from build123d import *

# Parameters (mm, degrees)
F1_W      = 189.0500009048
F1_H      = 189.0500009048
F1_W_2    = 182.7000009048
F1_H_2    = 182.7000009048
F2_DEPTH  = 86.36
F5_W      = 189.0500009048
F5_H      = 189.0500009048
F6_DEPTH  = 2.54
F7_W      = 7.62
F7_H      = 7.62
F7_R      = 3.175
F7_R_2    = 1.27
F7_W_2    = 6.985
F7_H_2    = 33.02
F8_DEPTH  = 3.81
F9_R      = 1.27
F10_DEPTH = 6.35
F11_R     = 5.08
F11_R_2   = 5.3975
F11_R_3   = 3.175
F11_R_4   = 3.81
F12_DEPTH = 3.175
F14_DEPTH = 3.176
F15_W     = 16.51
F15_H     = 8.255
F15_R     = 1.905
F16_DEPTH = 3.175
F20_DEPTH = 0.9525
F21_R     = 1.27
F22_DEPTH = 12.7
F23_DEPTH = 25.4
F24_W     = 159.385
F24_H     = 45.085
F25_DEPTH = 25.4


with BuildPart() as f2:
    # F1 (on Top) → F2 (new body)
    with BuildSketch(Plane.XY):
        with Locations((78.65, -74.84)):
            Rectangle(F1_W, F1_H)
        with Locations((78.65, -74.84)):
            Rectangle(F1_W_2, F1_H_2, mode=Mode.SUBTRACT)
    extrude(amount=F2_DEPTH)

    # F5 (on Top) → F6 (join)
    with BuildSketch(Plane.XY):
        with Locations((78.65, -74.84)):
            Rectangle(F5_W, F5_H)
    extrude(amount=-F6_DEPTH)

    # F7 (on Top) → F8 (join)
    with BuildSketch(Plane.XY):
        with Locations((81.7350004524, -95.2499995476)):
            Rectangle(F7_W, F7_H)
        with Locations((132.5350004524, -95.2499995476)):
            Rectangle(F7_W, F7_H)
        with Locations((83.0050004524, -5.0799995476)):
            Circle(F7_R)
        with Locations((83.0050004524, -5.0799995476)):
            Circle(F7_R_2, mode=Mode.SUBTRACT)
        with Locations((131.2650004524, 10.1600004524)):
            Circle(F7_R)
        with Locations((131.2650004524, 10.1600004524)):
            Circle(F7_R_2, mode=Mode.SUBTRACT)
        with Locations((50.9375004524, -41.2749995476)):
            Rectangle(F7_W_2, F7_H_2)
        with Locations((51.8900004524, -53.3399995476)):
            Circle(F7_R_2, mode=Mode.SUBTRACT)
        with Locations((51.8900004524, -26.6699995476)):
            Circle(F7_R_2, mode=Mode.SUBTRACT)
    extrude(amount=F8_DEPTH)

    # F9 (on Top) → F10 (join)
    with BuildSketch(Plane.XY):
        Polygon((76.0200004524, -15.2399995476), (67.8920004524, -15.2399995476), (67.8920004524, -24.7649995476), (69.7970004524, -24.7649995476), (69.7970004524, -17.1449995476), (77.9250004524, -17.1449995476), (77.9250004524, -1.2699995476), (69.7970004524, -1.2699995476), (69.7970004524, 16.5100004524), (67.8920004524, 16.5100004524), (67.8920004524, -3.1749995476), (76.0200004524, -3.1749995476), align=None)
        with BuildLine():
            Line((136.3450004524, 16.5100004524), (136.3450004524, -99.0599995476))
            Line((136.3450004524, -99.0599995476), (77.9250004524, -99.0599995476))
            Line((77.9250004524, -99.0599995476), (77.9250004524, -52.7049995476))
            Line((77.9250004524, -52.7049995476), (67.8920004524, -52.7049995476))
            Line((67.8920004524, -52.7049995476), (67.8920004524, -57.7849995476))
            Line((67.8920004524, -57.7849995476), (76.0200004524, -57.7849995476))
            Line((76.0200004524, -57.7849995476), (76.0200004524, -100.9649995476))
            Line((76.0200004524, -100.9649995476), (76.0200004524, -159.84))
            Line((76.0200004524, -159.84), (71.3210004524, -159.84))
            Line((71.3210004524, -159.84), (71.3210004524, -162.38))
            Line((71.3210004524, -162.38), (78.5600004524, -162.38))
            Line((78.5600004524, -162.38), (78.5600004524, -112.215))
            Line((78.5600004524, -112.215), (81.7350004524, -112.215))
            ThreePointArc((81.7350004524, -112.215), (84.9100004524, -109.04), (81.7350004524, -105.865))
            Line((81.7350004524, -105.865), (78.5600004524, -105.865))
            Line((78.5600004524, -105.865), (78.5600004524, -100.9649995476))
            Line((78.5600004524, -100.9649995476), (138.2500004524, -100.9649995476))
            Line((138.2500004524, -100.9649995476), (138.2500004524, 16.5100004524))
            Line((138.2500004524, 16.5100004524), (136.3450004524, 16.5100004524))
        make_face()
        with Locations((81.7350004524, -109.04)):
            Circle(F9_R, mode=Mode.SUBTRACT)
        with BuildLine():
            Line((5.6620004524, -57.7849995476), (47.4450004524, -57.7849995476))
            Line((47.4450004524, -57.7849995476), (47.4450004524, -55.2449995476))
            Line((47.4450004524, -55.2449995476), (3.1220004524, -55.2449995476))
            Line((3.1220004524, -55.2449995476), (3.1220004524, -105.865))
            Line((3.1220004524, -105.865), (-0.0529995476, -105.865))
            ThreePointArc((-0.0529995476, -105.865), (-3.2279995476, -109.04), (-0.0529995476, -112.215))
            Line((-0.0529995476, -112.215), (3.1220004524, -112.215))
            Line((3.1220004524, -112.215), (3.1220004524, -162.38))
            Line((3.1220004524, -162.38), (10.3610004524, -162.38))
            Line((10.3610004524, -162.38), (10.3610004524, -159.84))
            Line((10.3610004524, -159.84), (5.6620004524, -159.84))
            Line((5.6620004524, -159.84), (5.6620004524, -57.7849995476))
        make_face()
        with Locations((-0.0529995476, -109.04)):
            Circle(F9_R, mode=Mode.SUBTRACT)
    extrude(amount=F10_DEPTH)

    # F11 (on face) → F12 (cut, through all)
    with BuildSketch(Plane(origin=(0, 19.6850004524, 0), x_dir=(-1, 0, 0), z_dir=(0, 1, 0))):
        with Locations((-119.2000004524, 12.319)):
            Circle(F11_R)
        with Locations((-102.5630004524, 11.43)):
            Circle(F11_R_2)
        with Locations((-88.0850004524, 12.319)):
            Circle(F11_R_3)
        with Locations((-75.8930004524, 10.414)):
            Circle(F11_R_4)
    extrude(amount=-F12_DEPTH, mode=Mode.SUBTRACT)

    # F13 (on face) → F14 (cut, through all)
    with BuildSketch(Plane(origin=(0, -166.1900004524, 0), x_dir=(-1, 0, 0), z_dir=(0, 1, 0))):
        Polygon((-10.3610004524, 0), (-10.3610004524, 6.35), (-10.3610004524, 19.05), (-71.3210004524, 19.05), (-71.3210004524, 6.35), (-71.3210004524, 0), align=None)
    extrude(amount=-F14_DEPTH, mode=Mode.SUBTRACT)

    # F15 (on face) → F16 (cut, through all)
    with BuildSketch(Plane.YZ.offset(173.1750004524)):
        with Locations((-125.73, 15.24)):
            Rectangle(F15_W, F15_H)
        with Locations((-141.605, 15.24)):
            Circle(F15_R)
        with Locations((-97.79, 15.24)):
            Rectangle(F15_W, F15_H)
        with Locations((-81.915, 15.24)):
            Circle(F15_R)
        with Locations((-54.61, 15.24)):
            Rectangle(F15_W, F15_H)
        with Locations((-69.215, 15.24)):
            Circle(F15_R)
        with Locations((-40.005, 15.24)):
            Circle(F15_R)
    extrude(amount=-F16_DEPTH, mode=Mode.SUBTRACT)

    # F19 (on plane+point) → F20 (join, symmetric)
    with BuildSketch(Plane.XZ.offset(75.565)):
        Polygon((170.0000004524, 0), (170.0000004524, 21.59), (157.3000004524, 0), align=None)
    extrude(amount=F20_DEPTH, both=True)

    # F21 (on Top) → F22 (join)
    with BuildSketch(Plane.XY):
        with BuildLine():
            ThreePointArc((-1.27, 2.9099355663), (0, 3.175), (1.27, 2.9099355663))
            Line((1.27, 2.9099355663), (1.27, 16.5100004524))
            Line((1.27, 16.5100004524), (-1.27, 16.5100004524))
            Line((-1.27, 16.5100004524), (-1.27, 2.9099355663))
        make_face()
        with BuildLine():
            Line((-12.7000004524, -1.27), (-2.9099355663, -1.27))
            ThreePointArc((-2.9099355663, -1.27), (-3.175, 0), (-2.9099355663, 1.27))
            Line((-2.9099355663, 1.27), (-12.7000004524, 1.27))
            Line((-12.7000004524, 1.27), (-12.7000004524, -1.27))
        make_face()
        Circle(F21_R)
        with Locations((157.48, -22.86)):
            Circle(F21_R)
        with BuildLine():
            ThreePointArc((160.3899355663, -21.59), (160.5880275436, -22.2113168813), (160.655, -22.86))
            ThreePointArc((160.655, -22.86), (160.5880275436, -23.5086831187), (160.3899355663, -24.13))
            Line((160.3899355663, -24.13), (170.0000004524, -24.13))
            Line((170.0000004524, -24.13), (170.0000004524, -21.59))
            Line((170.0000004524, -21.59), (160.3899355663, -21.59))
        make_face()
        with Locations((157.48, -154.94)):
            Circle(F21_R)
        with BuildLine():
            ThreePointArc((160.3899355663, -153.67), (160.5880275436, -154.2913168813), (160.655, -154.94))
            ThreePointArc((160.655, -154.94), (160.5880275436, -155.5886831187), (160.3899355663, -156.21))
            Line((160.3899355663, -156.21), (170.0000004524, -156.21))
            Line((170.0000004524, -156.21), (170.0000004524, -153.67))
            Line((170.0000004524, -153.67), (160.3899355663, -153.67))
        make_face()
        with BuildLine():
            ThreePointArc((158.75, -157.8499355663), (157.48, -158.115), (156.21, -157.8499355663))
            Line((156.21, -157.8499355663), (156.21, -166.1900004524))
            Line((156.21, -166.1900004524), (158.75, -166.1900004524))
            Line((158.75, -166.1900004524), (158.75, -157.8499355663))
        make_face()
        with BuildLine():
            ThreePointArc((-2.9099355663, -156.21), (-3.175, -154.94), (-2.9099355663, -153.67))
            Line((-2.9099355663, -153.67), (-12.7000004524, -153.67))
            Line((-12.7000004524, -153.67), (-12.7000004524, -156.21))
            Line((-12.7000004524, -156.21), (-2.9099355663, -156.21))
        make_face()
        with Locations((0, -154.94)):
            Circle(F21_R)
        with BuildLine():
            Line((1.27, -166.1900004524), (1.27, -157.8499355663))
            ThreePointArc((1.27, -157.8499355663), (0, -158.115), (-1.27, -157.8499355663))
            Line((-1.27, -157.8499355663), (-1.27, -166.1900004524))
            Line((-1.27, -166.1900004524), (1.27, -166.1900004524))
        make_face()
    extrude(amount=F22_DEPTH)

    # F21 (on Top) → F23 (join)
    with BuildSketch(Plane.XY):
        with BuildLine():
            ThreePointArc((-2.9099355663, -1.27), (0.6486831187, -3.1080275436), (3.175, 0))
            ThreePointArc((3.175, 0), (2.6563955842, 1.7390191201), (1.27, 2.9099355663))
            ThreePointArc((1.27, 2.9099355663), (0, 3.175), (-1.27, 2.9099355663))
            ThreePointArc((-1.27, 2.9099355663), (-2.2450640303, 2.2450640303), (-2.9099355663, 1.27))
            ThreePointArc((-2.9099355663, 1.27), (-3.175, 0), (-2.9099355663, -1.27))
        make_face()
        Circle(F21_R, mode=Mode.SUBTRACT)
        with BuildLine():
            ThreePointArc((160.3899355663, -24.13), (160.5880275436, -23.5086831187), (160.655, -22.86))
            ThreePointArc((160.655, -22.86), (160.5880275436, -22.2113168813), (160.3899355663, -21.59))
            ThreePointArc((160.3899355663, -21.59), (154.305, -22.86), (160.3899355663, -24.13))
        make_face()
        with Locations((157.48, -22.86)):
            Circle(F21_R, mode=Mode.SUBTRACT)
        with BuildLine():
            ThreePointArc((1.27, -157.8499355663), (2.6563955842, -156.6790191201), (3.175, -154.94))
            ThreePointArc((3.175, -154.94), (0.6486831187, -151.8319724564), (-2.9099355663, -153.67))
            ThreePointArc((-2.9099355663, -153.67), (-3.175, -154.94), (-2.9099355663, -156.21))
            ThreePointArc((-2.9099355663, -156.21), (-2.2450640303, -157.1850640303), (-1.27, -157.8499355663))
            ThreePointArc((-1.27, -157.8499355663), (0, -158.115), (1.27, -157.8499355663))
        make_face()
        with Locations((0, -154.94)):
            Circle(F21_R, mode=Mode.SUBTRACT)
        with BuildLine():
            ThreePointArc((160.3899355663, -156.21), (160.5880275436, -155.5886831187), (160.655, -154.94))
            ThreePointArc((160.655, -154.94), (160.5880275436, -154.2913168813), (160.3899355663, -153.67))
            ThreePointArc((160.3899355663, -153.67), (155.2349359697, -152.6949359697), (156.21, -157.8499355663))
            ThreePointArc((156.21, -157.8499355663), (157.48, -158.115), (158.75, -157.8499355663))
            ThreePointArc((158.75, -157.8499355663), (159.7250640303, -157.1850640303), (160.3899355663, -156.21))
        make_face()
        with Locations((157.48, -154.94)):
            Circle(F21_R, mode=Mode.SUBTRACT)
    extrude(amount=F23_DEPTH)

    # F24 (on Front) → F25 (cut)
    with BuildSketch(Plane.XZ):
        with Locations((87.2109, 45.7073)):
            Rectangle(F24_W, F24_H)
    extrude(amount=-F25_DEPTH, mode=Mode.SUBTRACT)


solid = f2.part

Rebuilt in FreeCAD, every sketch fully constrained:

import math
import FreeCAD as App
import Part
import Sketcher

V = App.Vector
Q = App.Units.Quantity


def add_polygon(sketch, points):
    """Adds a closed chain of lines whose ends are joined by coincident constraints."""
    first, n = sketch.GeometryCount, len(points)
    for a, b in zip(points, points[1:] + points[:1]):
        sketch.addGeometry(Part.LineSegment(App.Vector(*a, 0), App.Vector(*b, 0)), False)
    for i in range(n):
        sketch.addConstraint(Sketcher.Constraint("Coincident", first + i, 2, first + (i + 1) % n, 1))

doc = App.newDocument("Part")
body = doc.addObject("PartDesign::Body", "Body")

# Sketch on XY plane
sketch1 = body.newObject("Sketcher::SketchObject", "Sketch")
sketch1.AttachmentSupport = (doc.getObject("XY_Plane"), [""])
sketch1.MapMode = "FlatFace"
add_polygon(sketch1, [(-15.875, 19.685), (-15.875, -169.365), (173.175, -169.365), (173.175, 19.685)])  # lines 0-3
add_polygon(sketch1, [(170, -166.19), (-12.7, -166.19), (-12.7, 16.51), (170, 16.51)])  # lines 4-7
sketch1.addConstraint([
    Sketcher.Constraint("Vertical", 0),
    Sketcher.Constraint("Horizontal", 1),
    Sketcher.Constraint("Vertical", 2),
    Sketcher.Constraint("Horizontal", 3),
    Sketcher.Constraint("Horizontal", 4),
    Sketcher.Constraint("Vertical", 5),
    Sketcher.Constraint("Horizontal", 6),
    Sketcher.Constraint("Vertical", 7),
    Sketcher.Constraint("Equal", 3, 0),
    Sketcher.Constraint("Equal", 6, 5),
    Sketcher.Constraint("DistanceX", 4, 2, -1, 1, Q("0.5 in")),
    Sketcher.Constraint("DistanceY", -1, 1, 5, 2, Q("0.65 in")),
    Sketcher.Constraint("DistanceX", 0, 2, -1, 1, Q("0.625 in")),
    Sketcher.Constraint("DistanceY", -1, 1, 2, 2, Q("0.775 in")),
    Sketcher.Constraint("DistanceY", 0, 2, 4, 2, Q("0.125 in")),
    Sketcher.Constraint("DistanceX", 1, 1, 1, 2, 189.050001),
])
pad1 = body.newObject("PartDesign::Pad", "Pad")
pad1.Profile = sketch1
pad1.Length = Q("3.4 in")

# Sketch on XY plane
sketch2 = body.newObject("Sketcher::SketchObject", "Sketch001")
sketch2.AttachmentSupport = (doc.getObject("XY_Plane"), [""])
sketch2.MapMode = "FlatFace"
add_polygon(sketch2, [(-15.875, 19.685), (-15.875, -169.365), (173.175, -169.365), (173.175, 19.685)])  # lines 0-3
sketch2.addConstraint([
    Sketcher.Constraint("Vertical", 0),
    Sketcher.Constraint("Horizontal", 1),
    Sketcher.Constraint("Vertical", 2),
    Sketcher.Constraint("Horizontal", 3),
    Sketcher.Constraint("Equal", 3, 0),
    Sketcher.Constraint("DistanceX", 0, 2, -1, 1, Q("0.625 in")),
    Sketcher.Constraint("DistanceY", -1, 1, 2, 2, Q("0.775 in")),
    Sketcher.Constraint("DistanceX", 1, 1, 1, 2, 189.050001),
])
pad2 = body.newObject("PartDesign::Pad", "Pad001")
pad2.Profile = sketch2
pad2.Length = Q("0.1 in")
pad2.Reversed = True

# Sketch on XY plane
sketch3 = body.newObject("Sketcher::SketchObject", "Sketch002")
sketch3.AttachmentSupport = (doc.getObject("XY_Plane"), [""])
sketch3.MapMode = "FlatFace"
add_polygon(sketch3, [(77.925, -91.44), (77.925, -99.06), (85.545, -99.06), (85.545, -91.44)])  # lines 0-3
add_polygon(sketch3, [(128.725, -91.44), (128.725, -99.06), (136.345, -99.06), (136.345, -91.44)])  # lines 4-7
sketch3.addGeometry(Part.Circle(V(83.005, -5.08, 0), V(0, 0, 1), 3.175), False)  # 8
sketch3.addGeometry(Part.Circle(V(83.005, -5.08, 0), V(0, 0, 1), 1.27), False)  # 9
sketch3.addGeometry(Part.Circle(V(131.265, 10.16, 0), V(0, 0, 1), 3.175), False)  # 10
sketch3.addGeometry(Part.Circle(V(131.265, 10.16, 0), V(0, 0, 1), 1.27), False)  # 11
add_polygon(sketch3, [(47.445, -24.765), (47.445, -57.785), (54.43, -57.785), (54.43, -24.765)])  # lines 12-15
sketch3.addGeometry(Part.Circle(V(51.89, -53.34, 0), V(0, 0, 1), 1.27), False)  # 16
sketch3.addGeometry(Part.Circle(V(51.89, -26.67, 0), V(0, 0, 1), 1.27), False)  # 17
sketch3.addConstraint([
    Sketcher.Constraint("Vertical", 0),
    Sketcher.Constraint("Horizontal", 1),
    Sketcher.Constraint("Vertical", 2),
    Sketcher.Constraint("Horizontal", 3),
    Sketcher.Constraint("Vertical", 4),
    Sketcher.Constraint("Horizontal", 5),
    Sketcher.Constraint("Vertical", 6),
    Sketcher.Constraint("Horizontal", 7),
    Sketcher.Constraint("Vertical", 12),
    Sketcher.Constraint("Horizontal", 13),
    Sketcher.Constraint("Vertical", 14),
    Sketcher.Constraint("Horizontal", 15),
    Sketcher.Constraint("Coincident", 9, 3, 8, 3),
    Sketcher.Constraint("Coincident", 11, 3, 10, 3),
    Sketcher.Constraint("Equal", 8, 10),
    Sketcher.Constraint("Equal", 9, 11),
    Sketcher.Constraint("Equal", 11, 16),
    Sketcher.Constraint("Equal", 16, 17),
    Sketcher.Constraint("Horizontal", 1, 2, 4, 2),
    Sketcher.Constraint("Horizontal", 3, 2, 6, 2),
    Sketcher.Constraint("Vertical", 16, 3, 17, 3),
    Sketcher.Constraint("Equal", 3, 5),
    Sketcher.Constraint("Equal", 7, 0),
    Sketcher.Constraint("Diameter", 9, Q("0.1 in")),
    Sketcher.Constraint("Diameter", 8, Q("0.25 in")),
    Sketcher.Constraint("DistanceX", 1, 1, 1, 2, Q("0.3 in")),
    Sketcher.Constraint("DistanceY", 12, 2, 12, 1, Q("1.3 in")),
    Sketcher.Constraint("DistanceX", 0, 2, 4, 2, Q("2 in")),
    Sketcher.Constraint("DistanceY", 8, 3, -1, 1, Q("0.2 in")),
    Sketcher.Constraint("DistanceY", -1, 1, 10, 3, Q("0.4 in")),
    Sketcher.Constraint("DistanceY", 16, 3, -1, 1, Q("2.1 in")),
    Sketcher.Constraint("DistanceY", 0, 2, -1, 1, Q("3.9 in")),
    Sketcher.Constraint("DistanceX", 8, 3, 10, 3, Q("1.9 in")),
    Sketcher.Constraint("DistanceX", 0, 2, 8, 3, Q("0.2 in")),
    Sketcher.Constraint("DistanceX", 12, 2, 3, 2, Q("1.2 in")),
    Sketcher.Constraint("DistanceX", 16, 3, 13, 2, Q("0.1 in")),
    Sketcher.Constraint("DistanceX", 13, 1, 13, 2, Q("0.275 in")),
    Sketcher.Constraint("DistanceY", 17, 3, -1, 1, Q("1.05 in")),
    Sketcher.Constraint("DistanceY", 12, 2, -1, 1, Q("2.275 in")),
    Sketcher.Constraint("DistanceX", -1, 1, 8, 3, 83.005),
])
pad3 = body.newObject("PartDesign::Pad", "Pad002")
pad3.Profile = sketch3
pad3.Length = Q("0.15 in")

# Sketch on XY plane
sketch4 = body.newObject("Sketcher::SketchObject", "Sketch003")
sketch4.AttachmentSupport = (doc.getObject("XY_Plane"), [""])
sketch4.MapMode = "FlatFace"
add_polygon(sketch4, [(76.02, -15.24), (67.892, -15.24), (67.892, -24.765), (69.797, -24.765), (69.797, -17.145), (77.925, -17.145), (77.925, -1.27), (69.797, -1.27), (69.797, 16.51), (67.892, 16.51), (67.892, -3.175), (76.02, -3.175)])  # lines 0-11
sketch4.addGeometry(Part.LineSegment(V(136.345, 16.51, 0), V(136.345, -99.06, 0)), False)  # 12
sketch4.addGeometry(Part.LineSegment(V(136.345, -99.06, 0), V(77.925, -99.06, 0)), False)  # 13
sketch4.addGeometry(Part.LineSegment(V(77.925, -99.06, 0), V(77.925, -52.705, 0)), False)  # 14
sketch4.addGeometry(Part.LineSegment(V(77.925, -52.705, 0), V(67.892, -52.705, 0)), False)  # 15
sketch4.addGeometry(Part.LineSegment(V(67.892, -52.705, 0), V(67.892, -57.785, 0)), False)  # 16
sketch4.addGeometry(Part.LineSegment(V(67.892, -57.785, 0), V(76.02, -57.785, 0)), False)  # 17
sketch4.addGeometry(Part.LineSegment(V(76.02, -57.785, 0), V(76.02, -159.84, 0)), False)  # 18
sketch4.addGeometry(Part.LineSegment(V(76.02, -159.84, 0), V(71.321, -159.84, 0)), False)  # 19
sketch4.addGeometry(Part.LineSegment(V(71.321, -159.84, 0), V(71.321, -162.38, 0)), False)  # 20
sketch4.addGeometry(Part.LineSegment(V(71.321, -162.38, 0), V(78.56, -162.38, 0)), False)  # 21
sketch4.addGeometry(Part.LineSegment(V(78.56, -162.38, 0), V(78.56, -112.215, 0)), False)  # 22
sketch4.addGeometry(Part.LineSegment(V(78.56, -112.215, 0), V(81.735, -112.215, 0)), False)  # 23
sketch4.addGeometry(Part.ArcOfCircle(Part.Circle(V(81.735, -109.04, 0), V(0, 0, 1), 3.175), math.radians(-90), math.radians(90)), False)  # 24
sketch4.addGeometry(Part.LineSegment(V(81.735, -105.865, 0), V(78.56, -105.865, 0)), False)  # 25
sketch4.addGeometry(Part.LineSegment(V(78.56, -105.865, 0), V(78.56, -100.965, 0)), False)  # 26
sketch4.addGeometry(Part.LineSegment(V(78.56, -100.965, 0), V(138.25, -100.965, 0)), False)  # 27
sketch4.addGeometry(Part.LineSegment(V(138.25, -100.965, 0), V(138.25, 16.51, 0)), False)  # 28
sketch4.addGeometry(Part.LineSegment(V(138.25, 16.51, 0), V(136.345, 16.51, 0)), False)  # 29
sketch4.addGeometry(Part.Circle(V(81.735, -109.04, 0), V(0, 0, 1), 1.27), False)  # 30
sketch4.addGeometry(Part.LineSegment(V(5.662, -57.785, 0), V(47.445, -57.785, 0)), False)  # 31
sketch4.addGeometry(Part.LineSegment(V(47.445, -57.785, 0), V(47.445, -55.245, 0)), False)  # 32
sketch4.addGeometry(Part.LineSegment(V(47.445, -55.245, 0), V(3.122, -55.245, 0)), False)  # 33
sketch4.addGeometry(Part.LineSegment(V(3.122, -55.245, 0), V(3.122, -105.865, 0)), False)  # 34
sketch4.addGeometry(Part.LineSegment(V(3.122, -105.865, 0), V(-0.053, -105.865, 0)), False)  # 35
sketch4.addGeometry(Part.ArcOfCircle(Part.Circle(V(-0.053, -109.04, 0), V(0, 0, 1), 3.175), math.radians(90), math.radians(270)), False)  # 36
sketch4.addGeometry(Part.LineSegment(V(-0.053, -112.215, 0), V(3.122, -112.215, 0)), False)  # 37
sketch4.addGeometry(Part.LineSegment(V(3.122, -112.215, 0), V(3.122, -162.38, 0)), False)  # 38
sketch4.addGeometry(Part.LineSegment(V(3.122, -162.38, 0), V(10.361, -162.38, 0)), False)  # 39
sketch4.addGeometry(Part.LineSegment(V(10.361, -162.38, 0), V(10.361, -159.84, 0)), False)  # 40
sketch4.addGeometry(Part.LineSegment(V(10.361, -159.84, 0), V(5.662, -159.84, 0)), False)  # 41
sketch4.addGeometry(Part.LineSegment(V(5.662, -159.84, 0), V(5.662, -57.785, 0)), False)  # 42
sketch4.addGeometry(Part.Circle(V(-0.053, -109.04, 0), V(0, 0, 1), 1.27), False)  # 43
sketch4.addConstraint([
    Sketcher.Constraint("Coincident", 12, 2, 13, 1),
    Sketcher.Constraint("Coincident", 13, 2, 14, 1),
    Sketcher.Constraint("Coincident", 14, 2, 15, 1),
    Sketcher.Constraint("Coincident", 15, 2, 16, 1),
    Sketcher.Constraint("Coincident", 16, 2, 17, 1),
    Sketcher.Constraint("Coincident", 17, 2, 18, 1),
    Sketcher.Constraint("Coincident", 18, 2, 19, 1),
    Sketcher.Constraint("Coincident", 19, 2, 20, 1),
    Sketcher.Constraint("Coincident", 20, 2, 21, 1),
    Sketcher.Constraint("Coincident", 21, 2, 22, 1),
    Sketcher.Constraint("Coincident", 22, 2, 23, 1),
    Sketcher.Constraint("Tangent", 23, 2, 24, 1),
    Sketcher.Constraint("Tangent", 24, 2, 25, 1),
    Sketcher.Constraint("Coincident", 25, 2, 26, 1),
    Sketcher.Constraint("Coincident", 26, 2, 27, 1),
    Sketcher.Constraint("Coincident", 27, 2, 28, 1),
    Sketcher.Constraint("Coincident", 28, 2, 29, 1),
    Sketcher.Constraint("Coincident", 29, 2, 12, 1),
    Sketcher.Constraint("Coincident", 31, 2, 32, 1),
    Sketcher.Constraint("Coincident", 32, 2, 33, 1),
    Sketcher.Constraint("Coincident", 33, 2, 34, 1),
    Sketcher.Constraint("Coincident", 34, 2, 35, 1),
    Sketcher.Constraint("Tangent", 35, 2, 36, 1),
    Sketcher.Constraint("Tangent", 36, 2, 37, 1),
    Sketcher.Constraint("Coincident", 37, 2, 38, 1),
    Sketcher.Constraint("Coincident", 38, 2, 39, 1),
    Sketcher.Constraint("Coincident", 39, 2, 40, 1),
    Sketcher.Constraint("Coincident", 40, 2, 41, 1),
    Sketcher.Constraint("Coincident", 41, 2, 42, 1),
    Sketcher.Constraint("Coincident", 42, 2, 31, 1),
    Sketcher.Constraint("Horizontal", 0),
    Sketcher.Constraint("Vertical", 1),
    Sketcher.Constraint("Horizontal", 2),
    Sketcher.Constraint("Vertical", 3),
    Sketcher.Constraint("Horizontal", 4),
    Sketcher.Constraint("Vertical", 5),
    Sketcher.Constraint("Horizontal", 6),
    Sketcher.Constraint("Vertical", 7),
    Sketcher.Constraint("Horizontal", 8),
    Sketcher.Constraint("Vertical", 9),
    Sketcher.Constraint("Horizontal", 10),
    Sketcher.Constraint("Vertical", 11),
    Sketcher.Constraint("Vertical", 12),
    Sketcher.Constraint("Horizontal", 13),
    Sketcher.Constraint("Vertical", 14),
    Sketcher.Constraint("Horizontal", 15),
    Sketcher.Constraint("Vertical", 16),
    Sketcher.Constraint("Horizontal", 17),
    Sketcher.Constraint("Vertical", 18),
    Sketcher.Constraint("Horizontal", 19),
    Sketcher.Constraint("Vertical", 20),
    Sketcher.Constraint("Horizontal", 21),
    Sketcher.Constraint("Vertical", 22),
    Sketcher.Constraint("Horizontal", 23),
    Sketcher.Constraint("Horizontal", 25),
    Sketcher.Constraint("Vertical", 26),
    Sketcher.Constraint("Horizontal", 27),
    Sketcher.Constraint("Vertical", 28),
    Sketcher.Constraint("Horizontal", 29),
    Sketcher.Constraint("Horizontal", 31),
    Sketcher.Constraint("Vertical", 32),
    Sketcher.Constraint("Horizontal", 33),
    Sketcher.Constraint("Vertical", 34),
    Sketcher.Constraint("Horizontal", 35),
    Sketcher.Constraint("Horizontal", 37),
    Sketcher.Constraint("Vertical", 38),
    Sketcher.Constraint("Horizontal", 39),
    Sketcher.Constraint("Vertical", 40),
    Sketcher.Constraint("Horizontal", 41),
    Sketcher.Constraint("Vertical", 42),
    Sketcher.Constraint("Coincident", 30, 3, 24, 3),
    Sketcher.Constraint("Coincident", 43, 3, 36, 3),
    Sketcher.Constraint("Equal", 24, 36),
    Sketcher.Constraint("Equal", 30, 43),
    Sketcher.Constraint("Horizontal", 30, 3, 36, 3),
    Sketcher.Constraint("Horizontal", 8, 2, 28, 2),
    Sketcher.Constraint("Horizontal", 17, 2, 31, 2),
    Sketcher.Constraint("Horizontal", 21, 2, 38, 2),
    Sketcher.Constraint("Horizontal", 19, 2, 40, 2),
    Sketcher.Constraint("Vertical", 3, 2, 6, 2),
    Sketcher.Constraint("Vertical", 1, 2, 8, 2),
    Sketcher.Constraint("Vertical", 5, 2, 13, 2),
    Sketcher.Constraint("Vertical", 9, 2, 15, 2),
    Sketcher.Constraint("Vertical", 11, 2, 17, 2),
    Sketcher.Constraint("Vertical", 22, 2, 25, 2),
    Sketcher.Constraint("Vertical", 34, 2, 37, 2),
    Sketcher.Constraint("Equal", 0, 4),
    Sketcher.Constraint("Equal", 8, 29),
    Sketcher.Constraint("Equal", 25, 35),
    Sketcher.Constraint("Equal", 21, 39),
    Sketcher.Constraint("Equal", 19, 41),
    Sketcher.Constraint("Equal", 20, 32),
    Sketcher.Constraint("Diameter", 30, Q("0.1 in")),
    Sketcher.Constraint("DistanceX", 13, 2, 13, 1, Q("2.3 in")),
    Sketcher.Constraint("DistanceY", 3, 1, 3, 2, Q("0.3 in")),
    Sketcher.Constraint("DistanceY", 7, 1, 7, 2, Q("0.7 in")),
    Sketcher.Constraint("DistanceY", 16, 2, 16, 1, Q("0.2 in")),
    Sketcher.Constraint("DistanceY", 20, 2, 20, 1, Q("0.1 in")),
    Sketcher.Constraint("Radius", 24, Q("0.125 in")),
    Sketcher.Constraint("DistanceY", 18, 2, 24, 3, Q("2 in")),
    Sketcher.Constraint("DistanceX", 0, 2, 0, 1, Q("0.32 in")),
    Sketcher.Constraint("DistanceX", 27, 1, 27, 2, Q("2.35 in")),
    Sketcher.Constraint("DistanceY", 12, 2, 12, 1, Q("4.55 in")),
    Sketcher.Constraint("DistanceY", 0, 2, -1, 1, Q("0.6 in")),
    Sketcher.Constraint("DistanceY", 12, 2, -1, 1, Q("3.9 in")),
    Sketcher.Constraint("DistanceY", 14, 2, 2, 2, Q("1.1 in")),
    Sketcher.Constraint("DistanceX", 18, 2, 21, 2, Q("0.1 in")),
    Sketcher.Constraint("DistanceX", 31, 2, 14, 2, Q("1.2 in")),
    Sketcher.Constraint("DistanceX", 19, 2, 19, 1, Q("0.185 in")),
    Sketcher.Constraint("DistanceX", 23, 1, 23, 2, Q("0.125 in")),
    Sketcher.Constraint("DistanceX", 31, 1, 31, 2, Q("1.645 in")),
    Sketcher.Constraint("DistanceY", 1, 2, 1, 1, Q("0.375 in")),
    Sketcher.Constraint("DistanceY", 9, 2, 9, 1, Q("0.775 in")),
    Sketcher.Constraint("DistanceY", 28, 1, 28, 2, Q("4.625 in")),
    Sketcher.Constraint("DistanceY", 18, 2, 18, 1, 102.055),
    Sketcher.Constraint("DistanceX", -1, 1, 24, 3, 81.735),
])
pad4 = body.newObject("PartDesign::Pad", "Pad003")
pad4.Profile = sketch4
pad4.Length = Q("0.25 in")

# Sketch on XZ plane
sketch5 = body.newObject("Sketcher::SketchObject", "Sketch004")
sketch5.AttachmentSupport = (doc.getObject("XZ_Plane"), [""])
sketch5.MapMode = "FlatFace"
sketch5.AttachmentOffset = App.Placement(V(0, 0, -0.775 * 25.4), App.Rotation())
sketch5.addGeometry([
    Part.Circle(V(119.2, 12.319, 0), V(0, 0, 1), 5.08),
    Part.Circle(V(102.563, 11.43, 0), V(0, 0, 1), 5.3975),
    Part.Circle(V(88.085, 12.319, 0), V(0, 0, 1), 3.175),
    Part.Circle(V(75.893, 10.414, 0), V(0, 0, 1), 3.81),
], False)
sketch5.addConstraint([
    Sketcher.Constraint("Horizontal", 0, 3, 2, 3),
    Sketcher.Constraint("Diameter", 0, Q("0.4 in")),
    Sketcher.Constraint("Diameter", 3, Q("0.3 in")),
    Sketcher.Constraint("Diameter", 2, Q("0.25 in")),
    Sketcher.Constraint("Diameter", 1, Q("0.425 in")),
    Sketcher.Constraint("DistanceY", -1, 1, 1, 3, Q("0.45 in")),
    Sketcher.Constraint("DistanceY", -1, 1, 3, 3, Q("0.41 in")),
    Sketcher.Constraint("DistanceX", 2, 3, 1, 3, Q("0.57 in")),
    Sketcher.Constraint("DistanceX", 3, 3, 2, 3, Q("0.48 in")),
    Sketcher.Constraint("DistanceY", -1, 1, 0, 3, Q("0.485 in")),
    Sketcher.Constraint("DistanceX", 1, 3, 0, 3, Q("0.655 in")),
    Sketcher.Constraint("DistanceX", -1, 1, 0, 3, 119.2),
])
pocket1 = body.newObject("PartDesign::Pocket", "Pocket")
pocket1.Profile = sketch5
pocket1.Length = Q("0.125 in")
pocket1.Reversed = True

# Sketch on XZ plane
sketch6 = body.newObject("Sketcher::SketchObject", "Sketch005")
sketch6.AttachmentSupport = (doc.getObject("XZ_Plane"), [""])
sketch6.MapMode = "FlatFace"
sketch6.AttachmentOffset = App.Placement(V(0, 0, 166.19), App.Rotation())
add_polygon(sketch6, [(10.361, 0), (10.361, 19.05), (71.321, 19.05), (71.321, 0)])  # lines 0-3
sketch6.addConstraint([
    Sketcher.Constraint("Vertical", 0),
    Sketcher.Constraint("Horizontal", 1),
    Sketcher.Constraint("Vertical", 2),
    Sketcher.Constraint("Horizontal", 3),
    Sketcher.Constraint("PointOnObject", 2, 2, -1),
    Sketcher.Constraint("DistanceX", 1, 1, 1, 2, Q("2.4 in")),
    Sketcher.Constraint("DistanceY", 0, 1, 0, 2, Q("0.75 in")),
    Sketcher.Constraint("DistanceX", -1, 1, 0, 2, 10.361),
])
pocket2 = body.newObject("PartDesign::Pocket", "Pocket001")
pocket2.Profile = sketch6
pocket2.Type = "ThroughAll"
pocket2.Reversed = True

# Sketch on YZ plane
sketch7 = body.newObject("Sketcher::SketchObject", "Sketch006")
sketch7.AttachmentSupport = (doc.getObject("YZ_Plane"), [""])
sketch7.MapMode = "FlatFace"
sketch7.AttachmentOffset = App.Placement(V(0, 0, 173.175), App.Rotation())
add_polygon(sketch7, [(-133.985, 19.3675), (-133.985, 11.1125), (-117.475, 11.1125), (-117.475, 19.3675)])  # lines 0-3
sketch7.addGeometry(Part.Circle(V(-141.605, 15.24, 0), V(0, 0, 1), 1.905), False)  # 4
add_polygon(sketch7, [(-106.045, 19.3675), (-106.045, 11.1125), (-89.535, 11.1125), (-89.535, 19.3675)])  # lines 5-8
sketch7.addGeometry(Part.Circle(V(-81.915, 15.24, 0), V(0, 0, 1), 1.905), False)  # 9
add_polygon(sketch7, [(-62.865, 19.3675), (-62.865, 11.1125), (-46.355, 11.1125), (-46.355, 19.3675)])  # lines 10-13
sketch7.addGeometry(Part.Circle(V(-69.215, 15.24, 0), V(0, 0, 1), 1.905), False)  # 14
sketch7.addGeometry(Part.Circle(V(-40.005, 15.24, 0), V(0, 0, 1), 1.905), False)  # 15
sketch7.addConstraint([
    Sketcher.Constraint("Vertical", 0),
    Sketcher.Constraint("Horizontal", 1),
    Sketcher.Constraint("Vertical", 2),
    Sketcher.Constraint("Horizontal", 3),
    Sketcher.Constraint("Vertical", 5),
    Sketcher.Constraint("Horizontal", 6),
    Sketcher.Constraint("Vertical", 7),
    Sketcher.Constraint("Horizontal", 8),
    Sketcher.Constraint("Vertical", 10),
    Sketcher.Constraint("Horizontal", 11),
    Sketcher.Constraint("Vertical", 12),
    Sketcher.Constraint("Horizontal", 13),
    Sketcher.Constraint("Equal", 4, 9),
    Sketcher.Constraint("Equal", 9, 14),
    Sketcher.Constraint("Equal", 14, 15),
    Sketcher.Constraint("Horizontal", 4, 3, 9, 3),
    Sketcher.Constraint("Horizontal", 9, 3, 14, 3),
    Sketcher.Constraint("Horizontal", 14, 3, 15, 3),
    Sketcher.Constraint("Horizontal", 1, 2, 5, 2),
    Sketcher.Constraint("Horizontal", 3, 2, 7, 2),
    Sketcher.Constraint("Horizontal", 6, 2, 10, 2),
    Sketcher.Constraint("Horizontal", 8, 2, 12, 2),
    Sketcher.Constraint("Equal", 3, 6),
    Sketcher.Constraint("Equal", 8, 11),
    Sketcher.Constraint("Diameter", 4, Q("0.15 in")),
    Sketcher.Constraint("DistanceX", 4, 3, 15, 3, Q("4 in")),
    Sketcher.Constraint("DistanceX", 1, 1, 1, 2, Q("0.65 in")),
    Sketcher.Constraint("DistanceY", -1, 1, 4, 3, Q("0.6 in")),
    Sketcher.Constraint("DistanceX", 9, 3, 14, 3, Q("0.5 in")),
    Sketcher.Constraint("DistanceX", 4, 3, 0, 2, Q("0.3 in")),
    Sketcher.Constraint("DistanceX", 1, 2, 9, 3, Q("1.4 in")),
    Sketcher.Constraint("DistanceX", 0, 2, 5, 2, Q("1.1 in")),
    Sketcher.Constraint("DistanceX", 10, 2, 15, 3, Q("0.9 in")),
    Sketcher.Constraint("DistanceY", 0, 2, 0, 1, Q("0.325 in")),
    Sketcher.Constraint("DistanceX", 4, 3, -1, 1, Q("5.575 in")),
    Sketcher.Constraint("DistanceY", -1, 1, 0, 2, Q("0.4375 in")),
])
pocket3 = body.newObject("PartDesign::Pocket", "Pocket002")
pocket3.Profile = sketch7
pocket3.Length = Q("0.125 in")

# Sketch on XZ plane
sketch8 = body.newObject("Sketcher::SketchObject", "Sketch007")
sketch8.AttachmentSupport = (doc.getObject("XZ_Plane"), [""])
sketch8.MapMode = "FlatFace"
sketch8.AttachmentOffset = App.Placement(V(0, 0, 2.975 * 25.4), App.Rotation())
add_polygon(sketch8, [(170, 0), (170, 21.59), (157.3, 0)])  # lines 0-2
sketch8.addConstraint([
    Sketcher.Constraint("Vertical", 0),
    Sketcher.Constraint("Horizontal", 2),
    Sketcher.Constraint("PointOnObject", 1, 2, -1),
    Sketcher.Constraint("DistanceX", 2, 1, 2, 2, Q("0.5 in")),
    Sketcher.Constraint("DistanceY", 0, 1, 0, 2, Q("0.85 in")),
    Sketcher.Constraint("DistanceX", -1, 1, 0, 2, 170.0),
])
pad5 = body.newObject("PartDesign::Pad", "Pad004")
pad5.Profile = sketch8
pad5.Length = Q("0.075 in")
pad5.Midplane = True

# Sketch on XY plane
sketch9 = body.newObject("Sketcher::SketchObject", "Sketch008")
sketch9.AttachmentSupport = (doc.getObject("XY_Plane"), [""])
sketch9.MapMode = "FlatFace"
sketch9.addGeometry([
    Part.ArcOfCircle(Part.Circle(V(0, 0, 0), V(0, 0, 1), 3.175), math.radians(66.421822), math.radians(113.578178)),  # 0
    Part.LineSegment(V(1.27, 2.909936, 0), V(1.27, 16.51, 0)),  # 1
    Part.LineSegment(V(1.27, 16.51, 0), V(-1.27, 16.51, 0)),  # 2
    Part.LineSegment(V(-1.27, 16.51, 0), V(-1.27, 2.909936, 0)),  # 3
    Part.LineSegment(V(-12.7, -1.27, 0), V(-2.909936, -1.27, 0)),  # 4
    Part.ArcOfCircle(Part.Circle(V(0, 0, 0), V(0, 0, 1), 3.175), math.radians(156.421822), math.radians(203.578178)),  # 5
    Part.LineSegment(V(-2.909936, 1.27, 0), V(-12.7, 1.27, 0)),  # 6
    Part.LineSegment(V(-12.7, 1.27, 0), V(-12.7, -1.27, 0)),  # 7
    Part.Circle(V(0, 0, 0), V(0, 0, 1), 1.27),  # 8
    Part.Circle(V(157.48, -22.86, 0), V(0, 0, 1), 1.27),  # 9
    Part.ArcOfCircle(Part.Circle(V(157.48, -22.86, 0), V(0, 0, 1), 3.175), math.radians(0), math.radians(23.578178)),  # 10
    Part.ArcOfCircle(Part.Circle(V(157.48, -22.86, 0), V(0, 0, 1), 3.175), math.radians(-23.578178), math.radians(0)),  # 11
    Part.LineSegment(V(160.389936, -24.13, 0), V(170, -24.13, 0)),  # 12
    Part.LineSegment(V(170, -24.13, 0), V(170, -21.59, 0)),  # 13
    Part.LineSegment(V(170, -21.59, 0), V(160.389936, -21.59, 0)),  # 14
    Part.Circle(V(157.48, -154.94, 0), V(0, 0, 1), 1.27),  # 15
    Part.ArcOfCircle(Part.Circle(V(157.48, -154.94, 0), V(0, 0, 1), 3.175), math.radians(0), math.radians(23.578178)),  # 16
    Part.ArcOfCircle(Part.Circle(V(157.48, -154.94, 0), V(0, 0, 1), 3.175), math.radians(-23.578178), math.radians(0)),  # 17
    Part.LineSegment(V(160.389936, -156.21, 0), V(170, -156.21, 0)),  # 18
    Part.LineSegment(V(170, -156.21, 0), V(170, -153.67, 0)),  # 19
    Part.LineSegment(V(170, -153.67, 0), V(160.389936, -153.67, 0)),  # 20
    Part.ArcOfCircle(Part.Circle(V(157.48, -154.94, 0), V(0, 0, 1), 3.175), math.radians(-113.578178), math.radians(-66.421822)),  # 21
    Part.LineSegment(V(156.21, -157.849936, 0), V(156.21, -166.19, 0)),  # 22
    Part.LineSegment(V(156.21, -166.19, 0), V(158.75, -166.19, 0)),  # 23
    Part.LineSegment(V(158.75, -166.19, 0), V(158.75, -157.849936, 0)),  # 24
    Part.ArcOfCircle(Part.Circle(V(0, -154.94, 0), V(0, 0, 1), 3.175), math.radians(156.421822), math.radians(203.578178)),  # 25
    Part.LineSegment(V(-2.909936, -153.67, 0), V(-12.7, -153.67, 0)),  # 26
    Part.LineSegment(V(-12.7, -153.67, 0), V(-12.7, -156.21, 0)),  # 27
    Part.LineSegment(V(-12.7, -156.21, 0), V(-2.909936, -156.21, 0)),  # 28
    Part.Circle(V(0, -154.94, 0), V(0, 0, 1), 1.27),  # 29
    Part.LineSegment(V(1.27, -166.19, 0), V(1.27, -157.849936, 0)),  # 30
    Part.ArcOfCircle(Part.Circle(V(0, -154.94, 0), V(0, 0, 1), 3.175), math.radians(-113.578178), math.radians(-66.421822)),  # 31
    Part.LineSegment(V(-1.27, -157.849936, 0), V(-1.27, -166.19, 0)),  # 32
    Part.LineSegment(V(-1.27, -166.19, 0), V(1.27, -166.19, 0)),  # 33
], False)
sketch9.addConstraint([
    Sketcher.Constraint("Coincident", 0, 1, 1, 1),
    Sketcher.Constraint("Coincident", 1, 2, 2, 1),
    Sketcher.Constraint("Coincident", 2, 2, 3, 1),
    Sketcher.Constraint("Coincident", 3, 2, 0, 2),
    Sketcher.Constraint("Coincident", 4, 2, 5, 2),
    Sketcher.Constraint("Coincident", 5, 1, 6, 1),
    Sketcher.Constraint("Coincident", 6, 2, 7, 1),
    Sketcher.Constraint("Coincident", 7, 2, 4, 1),
    Sketcher.Constraint("Tangent", 10, 1, 11, 2),
    Sketcher.Constraint("Coincident", 11, 1, 12, 1),
    Sketcher.Constraint("Coincident", 12, 2, 13, 1),
    Sketcher.Constraint("Coincident", 13, 2, 14, 1),
    Sketcher.Constraint("Coincident", 14, 2, 10, 2),
    Sketcher.Constraint("Tangent", 16, 1, 17, 2),
    Sketcher.Constraint("Coincident", 17, 1, 18, 1),
    Sketcher.Constraint("Coincident", 18, 2, 19, 1),
    Sketcher.Constraint("Coincident", 19, 2, 20, 1),
    Sketcher.Constraint("Coincident", 20, 2, 16, 2),
    Sketcher.Constraint("Coincident", 21, 1, 22, 1),
    Sketcher.Constraint("Coincident", 22, 2, 23, 1),
    Sketcher.Constraint("Coincident", 23, 2, 24, 1),
    Sketcher.Constraint("Coincident", 24, 2, 21, 2),
    Sketcher.Constraint("Coincident", 25, 1, 26, 1),
    Sketcher.Constraint("Coincident", 26, 2, 27, 1),
    Sketcher.Constraint("Coincident", 27, 2, 28, 1),
    Sketcher.Constraint("Coincident", 28, 2, 25, 2),
    Sketcher.Constraint("Coincident", 30, 2, 31, 2),
    Sketcher.Constraint("Coincident", 31, 1, 32, 1),
    Sketcher.Constraint("Coincident", 32, 2, 33, 1),
    Sketcher.Constraint("Coincident", 33, 2, 30, 1),
    Sketcher.Constraint("Vertical", 1),
    Sketcher.Constraint("Horizontal", 2),
    Sketcher.Constraint("Vertical", 3),
    Sketcher.Constraint("Horizontal", 4),
    Sketcher.Constraint("Horizontal", 6),
    Sketcher.Constraint("Vertical", 7),
    Sketcher.Constraint("Horizontal", 12),
    Sketcher.Constraint("Vertical", 13),
    Sketcher.Constraint("Horizontal", 14),
    Sketcher.Constraint("Horizontal", 18),
    Sketcher.Constraint("Vertical", 19),
    Sketcher.Constraint("Horizontal", 20),
    Sketcher.Constraint("Vertical", 22),
    Sketcher.Constraint("Horizontal", 23),
    Sketcher.Constraint("Vertical", 24),
    Sketcher.Constraint("Horizontal", 26),
    Sketcher.Constraint("Vertical", 27),
    Sketcher.Constraint("Horizontal", 28),
    Sketcher.Constraint("Vertical", 30),
    Sketcher.Constraint("Vertical", 32),
    Sketcher.Constraint("Horizontal", 33),
    Sketcher.Constraint("Coincident", 0, 3, -1, 1),
    Sketcher.Constraint("Coincident", 5, 3, -1, 1),
    Sketcher.Constraint("Coincident", 8, 3, -1, 1),
    Sketcher.Constraint("Coincident", 10, 3, 9, 3),
    Sketcher.Constraint("Coincident", 16, 3, 15, 3),
    Sketcher.Constraint("Coincident", 21, 3, 15, 3),
    Sketcher.Constraint("Coincident", 29, 3, 25, 3),
    Sketcher.Constraint("Coincident", 31, 3, 25, 3),
    Sketcher.Constraint("Equal", 0, 5),
    Sketcher.Constraint("Equal", 8, 9),
    Sketcher.Constraint("Equal", 5, 10),
    Sketcher.Constraint("Equal", 10, 11),
    Sketcher.Constraint("Equal", 9, 15),
    Sketcher.Constraint("Equal", 11, 16),
    Sketcher.Constraint("Equal", 16, 17),
    Sketcher.Constraint("Equal", 17, 21),
    Sketcher.Constraint("Equal", 21, 25),
    Sketcher.Constraint("Equal", 15, 29),
    Sketcher.Constraint("Equal", 25, 31),
    Sketcher.Constraint("Symmetric", 30, 2, 31, 1, -2),
    Sketcher.Constraint("Horizontal", 21, 3, 25, 3),
    Sketcher.Constraint("Horizontal", 0, 1, 3, 2),
    Sketcher.Constraint("Horizontal", 11, 3, 10, 1),
    Sketcher.Constraint("Horizontal", 31, 3, 16, 1),
    Sketcher.Constraint("Horizontal", 21, 1, 24, 2),
    Sketcher.Constraint("Horizontal", 20, 2, 25, 1),
    Sketcher.Constraint("Horizontal", 18, 2, 27, 2),
    Sketcher.Constraint("Horizontal", 24, 2, 30, 2),
    Sketcher.Constraint("Horizontal", 23, 2, 32, 2),
    Sketcher.Constraint("Vertical", 11, 3, 15, 3),
    Sketcher.Constraint("Vertical", 4, 2, 5, 1),
    Sketcher.Constraint("Vertical", 11, 1, 14, 2),
    Sketcher.Constraint("Vertical", 14, 2, 17, 1),
    Sketcher.Constraint("Vertical", 13, 2, 18, 2),
    Sketcher.Constraint("Vertical", 17, 1, 20, 2),
    Sketcher.Constraint("Vertical", 5, 1, 25, 1),
    Sketcher.Constraint("Vertical", 7, 2, 26, 2),
    Sketcher.Constraint("Vertical", 1, 2, 30, 2),
    Sketcher.Constraint("Equal", 33, 7),
    Sketcher.Constraint("Diameter", 8, Q("0.1 in")),
    Sketcher.Constraint("DistanceX", 2, 2, 2, 1, Q("0.1 in")),
    Sketcher.Constraint("Radius", 0, Q("0.125 in")),
    Sketcher.Constraint("DistanceY", 25, 1, 4, 2, Q("6 in")),
    Sketcher.Constraint("DistanceX", -1, 1, 9, 3, Q("6.2 in")),
    Sketcher.Constraint("DistanceY", 9, 3, -1, 1, Q("0.9 in")),
    Sketcher.Constraint("DistanceX", 6, 2, -1, 1, Q("0.5 in")),
    Sketcher.Constraint("DistanceY", -1, 1, 1, 2, Q("0.65 in")),
    Sketcher.Constraint("DistanceX", -1, 1, 12, 2, 170.0),
    Sketcher.Constraint("DistanceY", 22, 2, -1, 1, 166.19),
])
pad6 = body.newObject("PartDesign::Pad", "Pad005")
pad6.Profile = sketch9
pad6.Length = Q("0.5 in")

# Sketch on XY plane
sketch10 = body.newObject("Sketcher::SketchObject", "Sketch009")
sketch10.AttachmentSupport = (doc.getObject("XY_Plane"), [""])
sketch10.MapMode = "FlatFace"
sketch10.addGeometry([
    Part.ArcOfCircle(Part.Circle(V(0, 0, 0), V(0, 0, 1), 3.175), math.radians(-156.421822), math.radians(0)),  # 0
    Part.ArcOfCircle(Part.Circle(V(0, 0, 0), V(0, 0, 1), 3.175), math.radians(0), math.radians(66.421822)),  # 1
    Part.ArcOfCircle(Part.Circle(V(0, 0, 0), V(0, 0, 1), 3.175), math.radians(66.421822), math.radians(113.578178)),  # 2
    Part.ArcOfCircle(Part.Circle(V(0, 0, 0), V(0, 0, 1), 3.175), math.radians(113.578178), math.radians(156.421822)),  # 3
    Part.ArcOfCircle(Part.Circle(V(0, 0, 0), V(0, 0, 1), 3.175), math.radians(156.421822), math.radians(203.578178)),  # 4
    Part.Circle(V(0, 0, 0), V(0, 0, 1), 1.27),  # 5
    Part.ArcOfCircle(Part.Circle(V(157.48, -22.86, 0), V(0, 0, 1), 3.175), math.radians(-23.578178), math.radians(0)),  # 6
    Part.ArcOfCircle(Part.Circle(V(157.48, -22.86, 0), V(0, 0, 1), 3.175), math.radians(0), math.radians(23.578178)),  # 7
    Part.ArcOfCircle(Part.Circle(V(157.48, -22.86, 0), V(0, 0, 1), 3.175), math.radians(23.578178), math.radians(336.421822)),  # 8
    Part.Circle(V(157.48, -22.86, 0), V(0, 0, 1), 1.27),  # 9
    Part.ArcOfCircle(Part.Circle(V(0, -154.94, 0), V(0, 0, 1), 3.175), math.radians(-66.421822), math.radians(0)),  # 10
    Part.ArcOfCircle(Part.Circle(V(0, -154.94, 0), V(0, 0, 1), 3.175), math.radians(0), math.radians(156.421822)),  # 11
    Part.ArcOfCircle(Part.Circle(V(0, -154.94, 0), V(0, 0, 1), 3.175), math.radians(156.421822), math.radians(203.578178)),  # 12
    Part.ArcOfCircle(Part.Circle(V(0, -154.94, 0), V(0, 0, 1), 3.175), math.radians(-156.421822), math.radians(-113.578178)),  # 13
    Part.ArcOfCircle(Part.Circle(V(0, -154.94, 0), V(0, 0, 1), 3.175), math.radians(-113.578178), math.radians(-66.421822)),  # 14
    Part.Circle(V(0, -154.94, 0), V(0, 0, 1), 1.27),  # 15
    Part.ArcOfCircle(Part.Circle(V(157.48, -154.94, 0), V(0, 0, 1), 3.175), math.radians(-23.578178), math.radians(0)),  # 16
    Part.ArcOfCircle(Part.Circle(V(157.48, -154.94, 0), V(0, 0, 1), 3.175), math.radians(0), math.radians(23.578178)),  # 17
    Part.ArcOfCircle(Part.Circle(V(157.48, -154.94, 0), V(0, 0, 1), 3.175), math.radians(23.578178), math.radians(246.421822)),  # 18
    Part.ArcOfCircle(Part.Circle(V(157.48, -154.94, 0), V(0, 0, 1), 3.175), math.radians(-113.578178), math.radians(-66.421822)),  # 19
    Part.ArcOfCircle(Part.Circle(V(157.48, -154.94, 0), V(0, 0, 1), 3.175), math.radians(-66.421822), math.radians(-23.578178)),  # 20
    Part.Circle(V(157.48, -154.94, 0), V(0, 0, 1), 1.27),  # 21
], False)
sketch10.addConstraint([
    Sketcher.Constraint("Tangent", 0, 2, 1, 1),
    Sketcher.Constraint("Tangent", 1, 2, 2, 1),
    Sketcher.Constraint("Tangent", 2, 2, 3, 1),
    Sketcher.Constraint("Tangent", 3, 2, 4, 1),
    Sketcher.Constraint("Tangent", 4, 2, 0, 1),
    Sketcher.Constraint("Tangent", 6, 2, 7, 1),
    Sketcher.Constraint("Tangent", 7, 2, 8, 1),
    Sketcher.Constraint("Tangent", 8, 2, 6, 1),
    Sketcher.Constraint("Tangent", 10, 2, 11, 1),
    Sketcher.Constraint("Tangent", 11, 2, 12, 1),
    Sketcher.Constraint("Tangent", 12, 2, 13, 1),
    Sketcher.Constraint("Tangent", 13, 2, 14, 1),
    Sketcher.Constraint("Tangent", 14, 2, 10, 1),
    Sketcher.Constraint("Tangent", 16, 2, 17, 1),
    Sketcher.Constraint("Tangent", 17, 2, 18, 1),
    Sketcher.Constraint("Tangent", 18, 2, 19, 1),
    Sketcher.Constraint("Tangent", 19, 2, 20, 1),
    Sketcher.Constraint("Tangent", 20, 2, 16, 1),
    Sketcher.Constraint("Coincident", 0, 3, -1, 1),
    Sketcher.Constraint("Coincident", 2, 3, -1, 1),
    Sketcher.Constraint("Coincident", 5, 3, -1, 1),
    Sketcher.Constraint("Coincident", 9, 3, 6, 3),
    Sketcher.Constraint("Coincident", 12, 3, 10, 3),
    Sketcher.Constraint("Coincident", 15, 3, 10, 3),
    Sketcher.Constraint("Coincident", 18, 3, 16, 3),
    Sketcher.Constraint("Coincident", 21, 3, 16, 3),
    Sketcher.Constraint("Equal", 4, 6),
    Sketcher.Constraint("Equal", 5, 9),
    Sketcher.Constraint("Equal", 8, 10),
    Sketcher.Constraint("Equal", 9, 15),
    Sketcher.Constraint("Equal", 14, 16),
    Sketcher.Constraint("Equal", 15, 21),
    Sketcher.Constraint("Symmetric", 13, 2, 14, 2, -2),
    Sketcher.Constraint("PointOnObject", 0, 2, -1),
    Sketcher.Constraint("Horizontal", 15, 3, 16, 3),
    Sketcher.Constraint("Horizontal", 1, 2, 2, 2),
    Sketcher.Constraint("Horizontal", 9, 3, 6, 2),
    Sketcher.Constraint("Horizontal", 21, 3, 10, 2),
    Sketcher.Constraint("Horizontal", 10, 2, 16, 2),
    Sketcher.Constraint("Horizontal", 11, 2, 17, 2),
    Sketcher.Constraint("Horizontal", 14, 2, 18, 2),
    Sketcher.Constraint("Horizontal", 18, 2, 19, 2),
    Sketcher.Constraint("Horizontal", 12, 2, 20, 2),
    Sketcher.Constraint("Vertical", 9, 3, 16, 3),
    Sketcher.Constraint("Vertical", 3, 2, 4, 2),
    Sketcher.Constraint("Vertical", 7, 2, 8, 2),
    Sketcher.Constraint("Vertical", 4, 2, 11, 2),
    Sketcher.Constraint("Vertical", 11, 2, 12, 2),
    Sketcher.Constraint("Vertical", 2, 2, 13, 2),
    Sketcher.Constraint("Vertical", 8, 2, 17, 2),
    Sketcher.Constraint("Diameter", 5, Q("0.1 in")),
    Sketcher.Constraint("Radius", 0, Q("0.125 in")),
    Sketcher.Constraint("DistanceX", -1, 1, 6, 3, Q("6.2 in")),
    Sketcher.Constraint("DistanceY", 6, 3, -1, 1, Q("0.9 in")),
    Sketcher.Constraint("DistanceY", 10, 3, -1, 1, Q("6.1 in")),
    Sketcher.Constraint("DistanceX", 2, 2, 1, 2, Q("0.1 in")),
    Sketcher.Constraint("DistanceY", 4, 2, 3, 2, Q("0.1 in")),
])
pad7 = body.newObject("PartDesign::Pad", "Pad006")
pad7.Profile = sketch10
pad7.Length = Q("1 in")

# Sketch on XZ plane
sketch11 = body.newObject("Sketcher::SketchObject", "Sketch010")
sketch11.AttachmentSupport = (doc.getObject("XZ_Plane"), [""])
sketch11.MapMode = "FlatFace"
add_polygon(sketch11, [(7.5184, 68.2498), (7.5184, 23.1648), (166.9034, 23.1648), (166.9034, 68.2498)])  # lines 0-3
sketch11.addConstraint([
    Sketcher.Constraint("Vertical", 0),
    Sketcher.Constraint("Horizontal", 1),
    Sketcher.Constraint("Vertical", 2),
    Sketcher.Constraint("Horizontal", 3),
    Sketcher.Constraint("DistanceX", 1, 1, 1, 2, Q("6.275 in")),
    Sketcher.Constraint("DistanceY", 0, 2, 0, 1, Q("1.775 in")),
    Sketcher.Constraint("DistanceX", -1, 1, 0, 2, Q("0.296 in")),
    Sketcher.Constraint("DistanceY", -1, 1, 0, 2, Q("0.912 in")),
])
pocket4 = body.newObject("PartDesign::Pocket", "Pocket003")
pocket4.Profile = sketch11
pocket4.Length = Q("1 in")

doc.recompute()
